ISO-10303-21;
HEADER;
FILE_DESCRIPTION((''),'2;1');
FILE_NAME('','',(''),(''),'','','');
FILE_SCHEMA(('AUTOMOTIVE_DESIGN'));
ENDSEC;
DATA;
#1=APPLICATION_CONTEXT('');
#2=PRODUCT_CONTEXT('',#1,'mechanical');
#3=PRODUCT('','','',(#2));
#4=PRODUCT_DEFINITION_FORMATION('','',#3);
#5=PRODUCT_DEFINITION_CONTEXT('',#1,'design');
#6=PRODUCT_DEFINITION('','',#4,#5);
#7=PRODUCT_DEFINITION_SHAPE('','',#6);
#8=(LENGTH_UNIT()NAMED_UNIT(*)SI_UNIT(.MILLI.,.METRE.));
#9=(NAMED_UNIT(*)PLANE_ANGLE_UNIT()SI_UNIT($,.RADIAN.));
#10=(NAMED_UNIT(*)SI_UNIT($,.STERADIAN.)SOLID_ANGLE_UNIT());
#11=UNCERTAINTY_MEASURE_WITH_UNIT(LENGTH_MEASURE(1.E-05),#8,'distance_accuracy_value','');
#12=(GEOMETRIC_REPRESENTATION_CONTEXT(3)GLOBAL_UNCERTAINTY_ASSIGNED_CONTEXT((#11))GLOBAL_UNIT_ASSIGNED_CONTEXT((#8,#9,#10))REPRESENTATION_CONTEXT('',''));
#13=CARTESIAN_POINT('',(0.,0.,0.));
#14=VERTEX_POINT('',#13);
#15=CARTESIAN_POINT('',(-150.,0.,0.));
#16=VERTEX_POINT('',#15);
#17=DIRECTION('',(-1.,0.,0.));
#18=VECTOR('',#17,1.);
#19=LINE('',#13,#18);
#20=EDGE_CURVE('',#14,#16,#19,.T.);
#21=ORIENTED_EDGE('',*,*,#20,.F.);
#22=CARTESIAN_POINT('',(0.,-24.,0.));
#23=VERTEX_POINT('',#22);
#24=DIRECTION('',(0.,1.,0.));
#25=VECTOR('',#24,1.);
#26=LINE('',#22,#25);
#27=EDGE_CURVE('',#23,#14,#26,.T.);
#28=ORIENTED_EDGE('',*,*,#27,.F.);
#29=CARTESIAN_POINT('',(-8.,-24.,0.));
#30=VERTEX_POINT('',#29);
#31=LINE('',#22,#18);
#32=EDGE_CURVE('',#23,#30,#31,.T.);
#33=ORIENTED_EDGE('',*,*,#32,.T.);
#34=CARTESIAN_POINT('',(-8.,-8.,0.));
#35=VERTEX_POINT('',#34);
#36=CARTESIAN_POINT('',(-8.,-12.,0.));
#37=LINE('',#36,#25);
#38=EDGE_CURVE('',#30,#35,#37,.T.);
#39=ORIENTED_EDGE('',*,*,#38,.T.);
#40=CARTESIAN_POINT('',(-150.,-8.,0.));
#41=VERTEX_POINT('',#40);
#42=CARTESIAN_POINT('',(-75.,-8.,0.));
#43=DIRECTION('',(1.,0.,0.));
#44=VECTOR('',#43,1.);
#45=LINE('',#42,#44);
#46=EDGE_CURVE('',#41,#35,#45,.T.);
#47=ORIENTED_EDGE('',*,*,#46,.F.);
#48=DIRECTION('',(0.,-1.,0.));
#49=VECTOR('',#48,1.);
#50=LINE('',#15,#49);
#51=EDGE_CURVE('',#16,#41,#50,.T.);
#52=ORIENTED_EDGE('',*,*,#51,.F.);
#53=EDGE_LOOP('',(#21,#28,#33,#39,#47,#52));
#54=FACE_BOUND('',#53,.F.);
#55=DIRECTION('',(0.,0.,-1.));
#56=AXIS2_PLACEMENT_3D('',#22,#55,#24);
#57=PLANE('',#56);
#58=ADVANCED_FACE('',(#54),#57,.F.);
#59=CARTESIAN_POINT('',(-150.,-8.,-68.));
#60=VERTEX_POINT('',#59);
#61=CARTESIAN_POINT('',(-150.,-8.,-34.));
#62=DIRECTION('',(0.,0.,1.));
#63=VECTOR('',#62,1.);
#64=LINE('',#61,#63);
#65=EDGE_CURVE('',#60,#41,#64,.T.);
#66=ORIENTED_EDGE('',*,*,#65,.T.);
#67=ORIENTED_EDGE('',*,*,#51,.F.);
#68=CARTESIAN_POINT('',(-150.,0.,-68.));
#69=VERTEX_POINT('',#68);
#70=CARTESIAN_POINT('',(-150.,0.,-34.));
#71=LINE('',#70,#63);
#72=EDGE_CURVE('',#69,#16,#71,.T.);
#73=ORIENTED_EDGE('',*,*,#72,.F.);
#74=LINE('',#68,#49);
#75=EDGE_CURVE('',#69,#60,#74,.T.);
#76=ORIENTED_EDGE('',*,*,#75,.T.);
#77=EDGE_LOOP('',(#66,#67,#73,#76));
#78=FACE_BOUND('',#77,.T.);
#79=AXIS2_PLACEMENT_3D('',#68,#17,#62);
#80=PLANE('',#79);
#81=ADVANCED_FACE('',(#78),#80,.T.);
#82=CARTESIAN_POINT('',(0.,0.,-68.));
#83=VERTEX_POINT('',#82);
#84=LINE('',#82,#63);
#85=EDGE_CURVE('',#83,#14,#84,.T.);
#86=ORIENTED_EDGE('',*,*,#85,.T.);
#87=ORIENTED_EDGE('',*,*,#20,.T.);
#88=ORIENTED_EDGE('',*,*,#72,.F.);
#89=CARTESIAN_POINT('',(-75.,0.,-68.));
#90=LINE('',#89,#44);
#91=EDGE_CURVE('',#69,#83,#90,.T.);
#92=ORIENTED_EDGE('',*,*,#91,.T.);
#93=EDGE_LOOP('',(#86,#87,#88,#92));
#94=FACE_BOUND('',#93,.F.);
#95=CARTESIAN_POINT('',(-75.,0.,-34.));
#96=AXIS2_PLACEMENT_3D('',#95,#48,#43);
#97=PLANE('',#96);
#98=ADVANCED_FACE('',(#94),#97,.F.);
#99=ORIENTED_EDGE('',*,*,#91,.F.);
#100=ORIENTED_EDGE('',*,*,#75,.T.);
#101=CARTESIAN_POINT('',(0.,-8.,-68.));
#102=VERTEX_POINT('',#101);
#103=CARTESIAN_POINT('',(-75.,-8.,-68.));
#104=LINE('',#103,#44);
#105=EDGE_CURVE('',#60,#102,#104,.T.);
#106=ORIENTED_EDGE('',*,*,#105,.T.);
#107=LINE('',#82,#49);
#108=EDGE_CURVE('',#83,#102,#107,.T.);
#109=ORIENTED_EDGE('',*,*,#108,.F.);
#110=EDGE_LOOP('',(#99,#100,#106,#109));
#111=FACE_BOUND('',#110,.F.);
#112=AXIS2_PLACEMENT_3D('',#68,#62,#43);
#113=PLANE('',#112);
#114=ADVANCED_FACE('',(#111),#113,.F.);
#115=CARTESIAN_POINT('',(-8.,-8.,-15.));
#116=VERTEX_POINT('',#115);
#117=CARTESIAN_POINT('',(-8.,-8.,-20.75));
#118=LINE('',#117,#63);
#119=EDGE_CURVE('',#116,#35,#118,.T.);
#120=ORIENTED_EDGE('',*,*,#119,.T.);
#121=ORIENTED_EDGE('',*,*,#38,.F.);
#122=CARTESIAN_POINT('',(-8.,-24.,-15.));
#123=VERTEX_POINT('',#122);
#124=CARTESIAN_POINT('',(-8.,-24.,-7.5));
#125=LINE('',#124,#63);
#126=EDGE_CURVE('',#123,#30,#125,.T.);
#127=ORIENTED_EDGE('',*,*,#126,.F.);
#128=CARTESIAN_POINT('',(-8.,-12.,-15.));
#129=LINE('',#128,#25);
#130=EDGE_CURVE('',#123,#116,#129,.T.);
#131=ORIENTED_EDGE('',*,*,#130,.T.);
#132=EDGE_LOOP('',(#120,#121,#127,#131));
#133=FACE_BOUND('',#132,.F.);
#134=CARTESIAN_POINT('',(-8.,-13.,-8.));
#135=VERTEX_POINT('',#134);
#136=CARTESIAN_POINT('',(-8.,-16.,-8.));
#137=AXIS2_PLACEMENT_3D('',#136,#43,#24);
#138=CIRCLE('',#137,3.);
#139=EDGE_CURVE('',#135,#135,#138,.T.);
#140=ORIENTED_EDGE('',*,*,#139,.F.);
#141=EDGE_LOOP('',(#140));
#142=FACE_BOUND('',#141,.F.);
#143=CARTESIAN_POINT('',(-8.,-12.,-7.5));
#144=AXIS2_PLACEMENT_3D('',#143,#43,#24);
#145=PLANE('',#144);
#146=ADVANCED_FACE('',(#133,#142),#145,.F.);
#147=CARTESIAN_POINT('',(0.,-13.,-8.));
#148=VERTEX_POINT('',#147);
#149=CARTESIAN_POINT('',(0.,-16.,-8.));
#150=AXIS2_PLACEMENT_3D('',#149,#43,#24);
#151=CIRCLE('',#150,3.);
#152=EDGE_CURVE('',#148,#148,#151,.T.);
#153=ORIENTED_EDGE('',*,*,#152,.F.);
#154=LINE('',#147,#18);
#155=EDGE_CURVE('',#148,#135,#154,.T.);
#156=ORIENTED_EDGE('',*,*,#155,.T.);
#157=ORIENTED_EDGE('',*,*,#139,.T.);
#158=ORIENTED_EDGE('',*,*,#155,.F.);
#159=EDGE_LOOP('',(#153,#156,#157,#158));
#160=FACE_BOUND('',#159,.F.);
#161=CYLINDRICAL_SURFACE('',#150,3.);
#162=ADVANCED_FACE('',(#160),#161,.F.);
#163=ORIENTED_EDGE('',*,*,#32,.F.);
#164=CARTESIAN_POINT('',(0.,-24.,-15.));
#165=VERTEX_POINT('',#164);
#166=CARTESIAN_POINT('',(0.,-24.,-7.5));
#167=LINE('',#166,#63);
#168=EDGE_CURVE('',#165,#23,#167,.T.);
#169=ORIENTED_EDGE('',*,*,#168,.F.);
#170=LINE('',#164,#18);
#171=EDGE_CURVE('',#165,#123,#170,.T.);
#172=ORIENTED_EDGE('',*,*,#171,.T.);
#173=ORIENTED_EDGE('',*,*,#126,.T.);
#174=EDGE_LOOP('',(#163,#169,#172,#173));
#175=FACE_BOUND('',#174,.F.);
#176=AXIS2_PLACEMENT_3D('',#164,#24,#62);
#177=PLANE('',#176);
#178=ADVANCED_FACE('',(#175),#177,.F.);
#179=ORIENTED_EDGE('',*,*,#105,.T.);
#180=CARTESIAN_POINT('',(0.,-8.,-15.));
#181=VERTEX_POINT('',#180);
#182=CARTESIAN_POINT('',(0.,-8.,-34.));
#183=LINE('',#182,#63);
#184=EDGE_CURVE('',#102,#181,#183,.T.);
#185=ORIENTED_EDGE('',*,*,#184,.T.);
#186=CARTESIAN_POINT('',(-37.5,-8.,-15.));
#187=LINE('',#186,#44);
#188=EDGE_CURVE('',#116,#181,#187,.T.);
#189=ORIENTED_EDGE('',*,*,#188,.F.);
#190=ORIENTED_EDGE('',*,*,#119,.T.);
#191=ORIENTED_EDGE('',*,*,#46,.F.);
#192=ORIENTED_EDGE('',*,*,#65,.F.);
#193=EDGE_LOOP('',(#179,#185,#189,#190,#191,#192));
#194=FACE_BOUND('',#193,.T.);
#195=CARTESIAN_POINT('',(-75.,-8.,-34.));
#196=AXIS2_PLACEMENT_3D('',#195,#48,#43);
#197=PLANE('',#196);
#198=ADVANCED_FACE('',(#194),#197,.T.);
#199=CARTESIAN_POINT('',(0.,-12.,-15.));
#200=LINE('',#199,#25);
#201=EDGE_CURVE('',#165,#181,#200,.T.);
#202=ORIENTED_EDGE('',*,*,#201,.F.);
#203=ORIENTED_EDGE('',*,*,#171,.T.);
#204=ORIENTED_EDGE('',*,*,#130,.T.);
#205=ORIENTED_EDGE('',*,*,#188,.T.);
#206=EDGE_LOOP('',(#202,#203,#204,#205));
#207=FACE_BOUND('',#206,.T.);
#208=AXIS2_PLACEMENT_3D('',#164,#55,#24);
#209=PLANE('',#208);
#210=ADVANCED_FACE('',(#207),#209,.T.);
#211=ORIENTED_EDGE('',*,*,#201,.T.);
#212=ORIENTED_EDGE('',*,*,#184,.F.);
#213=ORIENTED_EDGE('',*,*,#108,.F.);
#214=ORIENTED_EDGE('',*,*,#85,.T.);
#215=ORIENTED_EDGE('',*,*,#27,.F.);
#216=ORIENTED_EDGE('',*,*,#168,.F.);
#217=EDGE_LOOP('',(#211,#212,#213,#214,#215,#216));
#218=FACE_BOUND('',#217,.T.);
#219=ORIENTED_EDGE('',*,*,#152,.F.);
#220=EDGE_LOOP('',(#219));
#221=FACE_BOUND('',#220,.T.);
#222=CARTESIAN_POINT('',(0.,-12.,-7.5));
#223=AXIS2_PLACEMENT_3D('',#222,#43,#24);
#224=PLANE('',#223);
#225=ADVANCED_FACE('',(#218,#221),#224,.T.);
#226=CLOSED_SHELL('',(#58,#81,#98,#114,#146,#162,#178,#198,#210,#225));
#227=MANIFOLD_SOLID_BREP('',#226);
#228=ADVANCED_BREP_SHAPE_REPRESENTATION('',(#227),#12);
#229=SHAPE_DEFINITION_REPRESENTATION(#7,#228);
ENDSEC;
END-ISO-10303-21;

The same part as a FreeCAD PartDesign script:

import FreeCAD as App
import Part
import Sketcher
Q = App.Units.Quantity

doc = App.newDocument("Part")
body = doc.addObject("PartDesign::Body", "Body")

sketch1 = body.newObject("Sketcher::SketchObject", "Sketch")
sketch1.AttachmentSupport = (doc.getObject("XZ_Plane"), [""])
sketch1.MapMode = "FlatFace"
sketch1.addGeometry([
    Part.LineSegment(App.Vector(-150, 0, 0), App.Vector(-150, -68, 0)),
    Part.LineSegment(App.Vector(-150, -68, 0), App.Vector(0, -68, 0)),
    Part.LineSegment(App.Vector(0, -68, 0), App.Vector(0, 0, 0)),
    Part.LineSegment(App.Vector(0, 0, 0), App.Vector(-150, 0, 0)),
], False)
sketch1.addConstraint([
    Sketcher.Constraint("Coincident", 0, 2, 1, 1),
    Sketcher.Constraint("Coincident", 1, 2, 2, 1),
    Sketcher.Constraint("Coincident", 2, 2, 3, 1),
    Sketcher.Constraint("Coincident", 3, 2, 0, 1),
    Sketcher.Constraint("Vertical", 0),
    Sketcher.Constraint("Horizontal", 1),
    Sketcher.Constraint("Vertical", 2),
    Sketcher.Constraint("Horizontal", 3),
    Sketcher.Constraint("Coincident", 2, 2, -1, 1),
    Sketcher.Constraint("DistanceX", 1, 1, 1, 2, Q("150 mm")),
    Sketcher.Constraint("DistanceY", 0, 2, 0, 1, Q("68 mm")),
])
pad1 = body.newObject("PartDesign::Pad", "Pad")
pad1.Profile = sketch1
pad1.Length = 8

sketch2 = body.newObject("Sketcher::SketchObject", "Sketch001")
sketch2.AttachmentSupport = (doc.getObject("YZ_Plane"), [""])
sketch2.MapMode = "FlatFace"
sketch2.addGeometry([
    Part.LineSegment(App.Vector(-24, 0, 0), App.Vector(-24, -15, 0)),
    Part.LineSegment(App.Vector(-24, -15, 0), App.Vector(0, -15, 0)),
    Part.LineSegment(App.Vector(0, -15, 0), App.Vector(0, 0, 0)),
    Part.LineSegment(App.Vector(0, 0, 0), App.Vector(-24, 0, 0)),
    Part.Circle(App.Vector(-16, -8, 0), App.Vector(0, 0, 1), 3),
], False)
sketch2.addConstraint([
    Sketcher.Constraint("Coincident", 0, 2, 1, 1),
    Sketcher.Constraint("Coincident", 1, 2, 2, 1),
    Sketcher.Constraint("Coincident", 2, 2, 3, 1),
    Sketcher.Constraint("Coincident", 3, 2, 0, 1),
    Sketcher.Constraint("Vertical", 0),
    Sketcher.Constraint("Horizontal", 1),
    Sketcher.Constraint("Vertical", 2),
    Sketcher.Constraint("Horizontal", 3),
    Sketcher.Constraint("Coincident", 2, 2, -1, 1),
    Sketcher.Constraint("Diameter", 4, Q("6 mm")),
    Sketcher.Constraint("DistanceX", 1, 1, 1, 2, Q("24 mm")),
    Sketcher.Constraint("DistanceY", 0, 2, 0, 1, Q("15 mm")),
    Sketcher.Constraint("DistanceX", 4, 3, -1, 1, Q("16 mm")),
    Sketcher.Constraint("DistanceY", 4, 3, -1, 1, Q("8 mm")),
])
pad2 = body.newObject("PartDesign::Pad", "Pad001")
pad2.Profile = sketch2
pad2.Length = 8
pad2.Reversed = True

doc.recompute()
